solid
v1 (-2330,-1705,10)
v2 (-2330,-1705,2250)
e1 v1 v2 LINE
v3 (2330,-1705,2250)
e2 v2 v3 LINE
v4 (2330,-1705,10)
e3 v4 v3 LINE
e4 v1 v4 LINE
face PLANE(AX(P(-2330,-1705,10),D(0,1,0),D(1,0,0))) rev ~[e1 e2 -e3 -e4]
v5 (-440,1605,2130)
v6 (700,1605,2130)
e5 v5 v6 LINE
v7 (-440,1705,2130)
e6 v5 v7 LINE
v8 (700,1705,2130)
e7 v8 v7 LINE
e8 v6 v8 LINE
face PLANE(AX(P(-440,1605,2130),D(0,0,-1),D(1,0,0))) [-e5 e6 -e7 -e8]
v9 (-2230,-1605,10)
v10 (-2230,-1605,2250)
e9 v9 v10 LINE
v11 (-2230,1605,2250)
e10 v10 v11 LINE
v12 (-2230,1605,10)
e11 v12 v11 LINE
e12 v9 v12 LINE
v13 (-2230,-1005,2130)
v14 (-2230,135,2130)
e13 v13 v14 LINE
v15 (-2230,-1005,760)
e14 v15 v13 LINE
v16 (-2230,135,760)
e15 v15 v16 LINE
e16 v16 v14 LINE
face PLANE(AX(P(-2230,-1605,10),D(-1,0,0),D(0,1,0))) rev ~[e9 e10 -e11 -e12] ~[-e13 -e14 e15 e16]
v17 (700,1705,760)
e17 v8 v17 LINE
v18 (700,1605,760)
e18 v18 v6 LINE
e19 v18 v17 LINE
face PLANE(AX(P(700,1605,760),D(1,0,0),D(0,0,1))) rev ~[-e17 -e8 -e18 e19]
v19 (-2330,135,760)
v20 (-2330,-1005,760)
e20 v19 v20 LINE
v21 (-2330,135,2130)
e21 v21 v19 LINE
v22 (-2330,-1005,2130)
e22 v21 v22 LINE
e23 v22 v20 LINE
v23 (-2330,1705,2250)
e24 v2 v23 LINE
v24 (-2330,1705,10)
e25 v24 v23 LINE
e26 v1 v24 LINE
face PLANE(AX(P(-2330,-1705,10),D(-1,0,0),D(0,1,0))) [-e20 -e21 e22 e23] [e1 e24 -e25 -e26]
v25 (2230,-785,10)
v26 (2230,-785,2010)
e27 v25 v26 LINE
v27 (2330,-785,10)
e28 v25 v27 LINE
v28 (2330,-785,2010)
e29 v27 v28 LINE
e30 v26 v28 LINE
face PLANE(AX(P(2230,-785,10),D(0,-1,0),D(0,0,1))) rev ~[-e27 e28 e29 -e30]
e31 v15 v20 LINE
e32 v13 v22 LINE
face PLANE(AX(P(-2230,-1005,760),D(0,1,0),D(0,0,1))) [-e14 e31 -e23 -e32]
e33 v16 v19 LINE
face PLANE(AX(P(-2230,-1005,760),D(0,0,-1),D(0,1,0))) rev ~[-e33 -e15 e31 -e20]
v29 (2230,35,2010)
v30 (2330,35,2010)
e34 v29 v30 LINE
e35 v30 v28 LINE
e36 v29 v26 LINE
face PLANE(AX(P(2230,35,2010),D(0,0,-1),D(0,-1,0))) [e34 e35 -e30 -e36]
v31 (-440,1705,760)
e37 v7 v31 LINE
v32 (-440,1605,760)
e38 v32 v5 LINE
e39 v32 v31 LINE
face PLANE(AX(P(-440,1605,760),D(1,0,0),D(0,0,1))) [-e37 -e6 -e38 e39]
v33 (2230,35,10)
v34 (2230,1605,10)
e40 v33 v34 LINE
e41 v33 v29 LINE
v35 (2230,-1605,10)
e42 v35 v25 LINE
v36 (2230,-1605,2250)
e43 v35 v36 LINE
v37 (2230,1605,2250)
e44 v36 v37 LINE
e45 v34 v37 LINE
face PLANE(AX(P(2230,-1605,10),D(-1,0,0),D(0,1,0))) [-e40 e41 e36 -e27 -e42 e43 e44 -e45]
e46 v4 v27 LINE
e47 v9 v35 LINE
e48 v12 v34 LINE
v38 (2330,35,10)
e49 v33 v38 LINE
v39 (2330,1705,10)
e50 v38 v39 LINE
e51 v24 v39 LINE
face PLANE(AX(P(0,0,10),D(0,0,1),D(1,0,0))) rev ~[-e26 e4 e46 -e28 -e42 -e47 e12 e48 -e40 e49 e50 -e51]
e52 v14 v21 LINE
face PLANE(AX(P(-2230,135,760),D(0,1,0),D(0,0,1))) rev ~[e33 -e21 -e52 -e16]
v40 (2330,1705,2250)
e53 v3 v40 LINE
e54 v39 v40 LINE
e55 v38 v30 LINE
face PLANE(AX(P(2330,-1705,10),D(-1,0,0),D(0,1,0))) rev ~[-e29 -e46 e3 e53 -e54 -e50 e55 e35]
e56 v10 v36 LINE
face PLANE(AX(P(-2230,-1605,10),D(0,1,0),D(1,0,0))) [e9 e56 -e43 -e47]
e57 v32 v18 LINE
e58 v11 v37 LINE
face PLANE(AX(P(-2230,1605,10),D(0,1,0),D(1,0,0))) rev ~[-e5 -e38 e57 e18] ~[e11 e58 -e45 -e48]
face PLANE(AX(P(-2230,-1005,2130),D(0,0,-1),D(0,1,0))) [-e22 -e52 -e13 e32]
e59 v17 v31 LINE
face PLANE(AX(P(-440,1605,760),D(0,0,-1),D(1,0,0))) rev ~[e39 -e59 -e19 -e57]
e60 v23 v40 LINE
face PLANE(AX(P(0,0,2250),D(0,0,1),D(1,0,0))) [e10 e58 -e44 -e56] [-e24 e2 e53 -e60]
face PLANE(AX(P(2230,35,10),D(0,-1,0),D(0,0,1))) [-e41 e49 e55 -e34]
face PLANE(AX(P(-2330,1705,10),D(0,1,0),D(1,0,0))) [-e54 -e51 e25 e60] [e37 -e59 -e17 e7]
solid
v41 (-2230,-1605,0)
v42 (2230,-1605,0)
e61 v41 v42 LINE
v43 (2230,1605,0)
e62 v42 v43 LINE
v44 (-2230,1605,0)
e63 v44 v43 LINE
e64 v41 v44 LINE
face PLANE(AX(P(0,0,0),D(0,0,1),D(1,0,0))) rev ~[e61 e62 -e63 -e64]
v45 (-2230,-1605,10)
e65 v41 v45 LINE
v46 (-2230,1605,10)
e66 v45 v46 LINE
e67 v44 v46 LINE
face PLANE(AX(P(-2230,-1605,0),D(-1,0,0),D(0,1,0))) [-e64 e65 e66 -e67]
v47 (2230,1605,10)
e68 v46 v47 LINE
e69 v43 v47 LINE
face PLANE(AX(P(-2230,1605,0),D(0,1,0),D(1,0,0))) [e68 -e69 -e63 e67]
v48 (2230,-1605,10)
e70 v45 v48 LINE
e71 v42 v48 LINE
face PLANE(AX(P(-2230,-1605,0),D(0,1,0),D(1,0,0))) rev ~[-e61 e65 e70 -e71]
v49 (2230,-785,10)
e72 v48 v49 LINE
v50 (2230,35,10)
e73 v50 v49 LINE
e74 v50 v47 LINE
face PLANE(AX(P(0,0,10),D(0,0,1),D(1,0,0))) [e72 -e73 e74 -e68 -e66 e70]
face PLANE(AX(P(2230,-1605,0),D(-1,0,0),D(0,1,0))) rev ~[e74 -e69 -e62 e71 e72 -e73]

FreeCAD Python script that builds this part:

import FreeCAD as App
import Part
import Sketcher
Q = App.Units.Quantity

doc = App.newDocument("Part")
body = doc.addObject("PartDesign::Body", "Body")
body.AllowCompound = True

# Sketch on XY plane
sketch1 = body.newObject("Sketcher::SketchObject", "Sketch")
sketch1.AttachmentSupport = (doc.getObject("XY_Plane"), [""])
sketch1.MapMode = "FlatFace"
sketch1.addGeometry(Part.LineSegment(App.Vector(-2230, 1605, 0), App.Vector(-2230, -1605, 0)), False)
sketch1.addGeometry(Part.LineSegment(App.Vector(-2230, -1605, 0), App.Vector(2230, -1605, 0)), False)
sketch1.addGeometry(Part.LineSegment(App.Vector(2230, -1605, 0), App.Vector(2230, 1605, 0)), False)
sketch1.addGeometry(Part.LineSegment(App.Vector(2230, 1605, 0), App.Vector(-2230, 1605, 0)), False)
sketch1.addConstraint(Sketcher.Constraint("Coincident", 0, 2, 1, 1))
sketch1.addConstraint(Sketcher.Constraint("Coincident", 1, 2, 2, 1))
sketch1.addConstraint(Sketcher.Constraint("Coincident", 2, 2, 3, 1))
sketch1.addConstraint(Sketcher.Constraint("Coincident", 3, 2, 0, 1))
sketch1.addConstraint(Sketcher.Constraint("Vertical", 0))
sketch1.addConstraint(Sketcher.Constraint("Horizontal", 1))
sketch1.addConstraint(Sketcher.Constraint("Vertical", 2))
sketch1.addConstraint(Sketcher.Constraint("Horizontal", 3))
sketch1.addConstraint(Sketcher.Constraint("Symmetric", 0, 2, 2, 2, -1, 1))
sketch1.addConstraint(Sketcher.Constraint("DistanceX", 1, 1, 1, 2, Q("4460 mm")))
sketch1.addConstraint(Sketcher.Constraint("DistanceY", 0, 2, 0, 1, Q("3210 mm")))
pad1 = body.newObject("PartDesign::Pad", "Pad")
pad1.Profile = sketch1
pad1.Length = 10

# Sketch on XY plane
sketch2 = body.newObject("Sketcher::SketchObject", "Sketch001")
sketch2.AttachmentSupport = (doc.getObject("XY_Plane"), [""])
sketch2.MapMode = "FlatFace"
sketch2.AttachmentOffset = App.Placement(App.Vector(0, 0, 10), App.Rotation())
sketch2.addGeometry(Part.LineSegment(App.Vector(-2330, 1705, 0), App.Vector(-2330, -1705, 0)), False)
sketch2.addGeometry(Part.LineSegment(App.Vector(-2330, -1705, 0), App.Vector(2330, -1705, 0)), False)
sketch2.addGeometry(Part.LineSegment(App.Vector(2330, -1705, 0), App.Vector(2330, 1705, 0)), False)
sketch2.addGeometry(Part.LineSegment(App.Vector(2330, 1705, 0), App.Vector(-2330, 1705, 0)), False)
sketch2.addGeometry(Part.LineSegment(App.Vector(2230, -1605, 0), App.Vector(-2230, -1605, 0)), False)
sketch2.addGeometry(Part.LineSegment(App.Vector(-2230, -1605, 0), App.Vector(-2230, 1605, 0)), False)
sketch2.addGeometry(Part.LineSegment(App.Vector(-2230, 1605, 0), App.Vector(2230, 1605, 0)), False)
sketch2.addGeometry(Part.LineSegment(App.Vector(2230, 1605, 0), App.Vector(2230, -1605, 0)), False)
sketch2.addConstraint(Sketcher.Constraint("Coincident", 0, 2, 1, 1))
sketch2.addConstraint(Sketcher.Constraint("Coincident", 1, 2, 2, 1))
sketch2.addConstraint(Sketcher.Constraint("Coincident", 2, 2, 3, 1))
sketch2.addConstraint(Sketcher.Constraint("Coincident", 3, 2, 0, 1))
sketch2.addConstraint(Sketcher.Constraint("Coincident", 4, 2, 5, 1))
sketch2.addConstraint(Sketcher.Constraint("Coincident", 5, 2, 6, 1))
sketch2.addConstraint(Sketcher.Constraint("Coincident", 6, 2, 7, 1))
sketch2.addConstraint(Sketcher.Constraint("Coincident", 7, 2, 4, 1))
sketch2.addConstraint(Sketcher.Constraint("Vertical", 0))
sketch2.addConstraint(Sketcher.Constraint("Horizontal", 1))
sketch2.addConstraint(Sketcher.Constraint("Vertical", 2))
sketch2.addConstraint(Sketcher.Constraint("Horizontal", 3))
sketch2.addConstraint(Sketcher.Constraint("Horizontal", 4))
sketch2.addConstraint(Sketcher.Constraint("Vertical", 5))
sketch2.addConstraint(Sketcher.Constraint("Horizontal", 6))
sketch2.addConstraint(Sketcher.Constraint("Vertical", 7))
sketch2.addConstraint(Sketcher.Constraint("Symmetric", 0, 2, 2, 2, -1, 1))
sketch2.addConstraint(Sketcher.Constraint("Symmetric", 4, 2, 6, 2, -1, 1))
sketch2.addConstraint(Sketcher.Constraint("DistanceX", 1, 1, 1, 2, Q("4660 mm")))
sketch2.addConstraint(Sketcher.Constraint("DistanceX", 4, 2, 4, 1, Q("4460 mm")))
sketch2.addConstraint(Sketcher.Constraint("DistanceY", 0, 2, 0, 1, Q("3410 mm")))
sketch2.addConstraint(Sketcher.Constraint("DistanceY", 5, 1, 5, 2, Q("3210 mm")))
pad2 = body.newObject("PartDesign::Pad", "Pad001")
pad2.Profile = sketch2
pad2.Length = 2240

# Sketch on YZ plane
sketch3 = body.newObject("Sketcher::SketchObject", "Sketch002")
sketch3.AttachmentSupport = (doc.getObject("YZ_Plane"), [""])
sketch3.MapMode = "FlatFace"
sketch3.AttachmentOffset = App.Placement(App.Vector(0, 0, -2230), App.Rotation())
sketch3.addGeometry(Part.LineSegment(App.Vector(-1005, 2130, 0), App.Vector(-1005, 760, 0)), False)
sketch3.addGeometry(Part.LineSegment(App.Vector(-1005, 760, 0), App.Vector(135, 760, 0)), False)
sketch3.addGeometry(Part.LineSegment(App.Vector(135, 760, 0), App.Vector(135, 2130, 0)), False)
sketch3.addGeometry(Part.LineSegment(App.Vector(135, 2130, 0), App.Vector(-1005, 2130, 0)), False)
sketch3.addConstraint(Sketcher.Constraint("Coincident", 0, 2, 1, 1))
sketch3.addConstraint(Sketcher.Constraint("Coincident", 1, 2, 2, 1))
sketch3.addConstraint(Sketcher.Constraint("Coincident", 2, 2, 3, 1))
sketch3.addConstraint(Sketcher.Constraint("Coincident", 3, 2, 0, 1))
sketch3.addConstraint(Sketcher.Constraint("Vertical", 0))
sketch3.addConstraint(Sketcher.Constraint("Horizontal", 1))
sketch3.addConstraint(Sketcher.Constraint("Vertical", 2))
sketch3.addConstraint(Sketcher.Constraint("Horizontal", 3))
sketch3.addConstraint(Sketcher.Constraint("DistanceX", 1, 1, 1, 2, Q("1140 mm")))
sketch3.addConstraint(Sketcher.Constraint("DistanceY", 0, 2, 0, 1, Q("1370 mm")))
sketch3.addConstraint(Sketcher.Constraint("DistanceX", 0, 2, -1, 1, Q("1005 mm")))
sketch3.addConstraint(Sketcher.Constraint("DistanceY", -1, 1, 0, 2, Q("760 mm")))
pocket1 = body.newObject("PartDesign::Pocket", "Pocket")
pocket1.Profile = sketch3
pocket1.Length = 300

# Sketch on XZ plane
sketch4 = body.newObject("Sketcher::SketchObject", "Sketch003")
sketch4.AttachmentSupport = (doc.getObject("XZ_Plane"), [""])
sketch4.MapMode = "FlatFace"
sketch4.AttachmentOffset = App.Placement(App.Vector(0, 0, -1605), App.Rotation())
sketch4.addGeometry(Part.LineSegment(App.Vector(-440, 2130, 0), App.Vector(-440, 760, 0)), False)
sketch4.addGeometry(Part.LineSegment(App.Vector(-440, 760, 0), App.Vector(700, 760, 0)), False)
sketch4.addGeometry(Part.LineSegment(App.Vector(700, 760, 0), App.Vector(700, 2130, 0)), False)
sketch4.addGeometry(Part.LineSegment(App.Vector(700, 2130, 0), App.Vector(-440, 2130, 0)), False)
sketch4.addConstraint(Sketcher.Constraint("Coincident", 0, 2, 1, 1))
sketch4.addConstraint(Sketcher.Constraint("Coincident", 1, 2, 2, 1))
sketch4.addConstraint(Sketcher.Constraint("Coincident", 2, 2, 3, 1))
sketch4.addConstraint(Sketcher.Constraint("Coincident", 3, 2, 0, 1))
sketch4.addConstraint(Sketcher.Constraint("Vertical", 0))
sketch4.addConstraint(Sketcher.Constraint("Horizontal", 1))
sketch4.addConstraint(Sketcher.Constraint("Vertical", 2))
sketch4.addConstraint(Sketcher.Constraint("Horizontal", 3))
sketch4.addConstraint(Sketcher.Constraint("DistanceX", 1, 1, 1, 2, Q("1140 mm")))
sketch4.addConstraint(Sketcher.Constraint("DistanceY", 0, 2, 0, 1, Q("1370 mm")))
sketch4.addConstraint(Sketcher.Constraint("DistanceX", 0, 2, -1, 1, Q("440 mm")))
sketch4.addConstraint(Sketcher.Constraint("DistanceY", -1, 1, 0, 2, Q("760 mm")))
pocket2 = body.newObject("PartDesign::Pocket", "Pocket001")
pocket2.Profile = sketch4
pocket2.Length = 300

# Sketch on YZ plane
sketch5 = body.newObject("Sketcher::SketchObject", "Sketch004")
sketch5.AttachmentSupport = (doc.getObject("YZ_Plane"), [""])
sketch5.MapMode = "FlatFace"
sketch5.AttachmentOffset = App.Placement(App.Vector(0, 0, 2230), App.Rotation())
sketch5.addGeometry(Part.LineSegment(App.Vector(35, 2010, 0), App.Vector(35, 10, 0)), False)
sketch5.addGeometry(Part.LineSegment(App.Vector(35, 10, 0), App.Vector(-785, 10, 0)), False)
sketch5.addGeometry(Part.LineSegment(App.Vector(-785, 10, 0), App.Vector(-785, 2010, 0)), False)
sketch5.addGeometry(Part.LineSegment(App.Vector(-785, 2010, 0), App.Vector(35, 2010, 0)), False)
sketch5.addConstraint(Sketcher.Constraint("Coincident", 0, 2, 1, 1))
sketch5.addConstraint(Sketcher.Constraint("Coincident", 1, 2, 2, 1))
sketch5.addConstraint(Sketcher.Constraint("Coincident", 2, 2, 3, 1))
sketch5.addConstraint(Sketcher.Constraint("Coincident", 3, 2, 0, 1))
sketch5.addConstraint(Sketcher.Constraint("Vertical", 0))
sketch5.addConstraint(Sketcher.Constraint("Horizontal", 1))
sketch5.addConstraint(Sketcher.Constraint("Vertical", 2))
sketch5.addConstraint(Sketcher.Constraint("Horizontal", 3))
sketch5.addConstraint(Sketcher.Constraint("DistanceX", 1, 2, 1, 1, Q("820 mm")))
sketch5.addConstraint(Sketcher.Constraint("DistanceY", 0, 2, 0, 1, Q("2000 mm")))
sketch5.addConstraint(Sketcher.Constraint("DistanceX", -1, 1, 0, 2, Q("35 mm")))
sketch5.addConstraint(Sketcher.Constraint("DistanceY", -1, 1, 0, 2, Q("10 mm")))
pocket3 = body.newObject("PartDesign::Pocket", "Pocket002")
pocket3.Profile = sketch5
pocket3.Length = 150
pocket3.Reversed = True

doc.recompute()
